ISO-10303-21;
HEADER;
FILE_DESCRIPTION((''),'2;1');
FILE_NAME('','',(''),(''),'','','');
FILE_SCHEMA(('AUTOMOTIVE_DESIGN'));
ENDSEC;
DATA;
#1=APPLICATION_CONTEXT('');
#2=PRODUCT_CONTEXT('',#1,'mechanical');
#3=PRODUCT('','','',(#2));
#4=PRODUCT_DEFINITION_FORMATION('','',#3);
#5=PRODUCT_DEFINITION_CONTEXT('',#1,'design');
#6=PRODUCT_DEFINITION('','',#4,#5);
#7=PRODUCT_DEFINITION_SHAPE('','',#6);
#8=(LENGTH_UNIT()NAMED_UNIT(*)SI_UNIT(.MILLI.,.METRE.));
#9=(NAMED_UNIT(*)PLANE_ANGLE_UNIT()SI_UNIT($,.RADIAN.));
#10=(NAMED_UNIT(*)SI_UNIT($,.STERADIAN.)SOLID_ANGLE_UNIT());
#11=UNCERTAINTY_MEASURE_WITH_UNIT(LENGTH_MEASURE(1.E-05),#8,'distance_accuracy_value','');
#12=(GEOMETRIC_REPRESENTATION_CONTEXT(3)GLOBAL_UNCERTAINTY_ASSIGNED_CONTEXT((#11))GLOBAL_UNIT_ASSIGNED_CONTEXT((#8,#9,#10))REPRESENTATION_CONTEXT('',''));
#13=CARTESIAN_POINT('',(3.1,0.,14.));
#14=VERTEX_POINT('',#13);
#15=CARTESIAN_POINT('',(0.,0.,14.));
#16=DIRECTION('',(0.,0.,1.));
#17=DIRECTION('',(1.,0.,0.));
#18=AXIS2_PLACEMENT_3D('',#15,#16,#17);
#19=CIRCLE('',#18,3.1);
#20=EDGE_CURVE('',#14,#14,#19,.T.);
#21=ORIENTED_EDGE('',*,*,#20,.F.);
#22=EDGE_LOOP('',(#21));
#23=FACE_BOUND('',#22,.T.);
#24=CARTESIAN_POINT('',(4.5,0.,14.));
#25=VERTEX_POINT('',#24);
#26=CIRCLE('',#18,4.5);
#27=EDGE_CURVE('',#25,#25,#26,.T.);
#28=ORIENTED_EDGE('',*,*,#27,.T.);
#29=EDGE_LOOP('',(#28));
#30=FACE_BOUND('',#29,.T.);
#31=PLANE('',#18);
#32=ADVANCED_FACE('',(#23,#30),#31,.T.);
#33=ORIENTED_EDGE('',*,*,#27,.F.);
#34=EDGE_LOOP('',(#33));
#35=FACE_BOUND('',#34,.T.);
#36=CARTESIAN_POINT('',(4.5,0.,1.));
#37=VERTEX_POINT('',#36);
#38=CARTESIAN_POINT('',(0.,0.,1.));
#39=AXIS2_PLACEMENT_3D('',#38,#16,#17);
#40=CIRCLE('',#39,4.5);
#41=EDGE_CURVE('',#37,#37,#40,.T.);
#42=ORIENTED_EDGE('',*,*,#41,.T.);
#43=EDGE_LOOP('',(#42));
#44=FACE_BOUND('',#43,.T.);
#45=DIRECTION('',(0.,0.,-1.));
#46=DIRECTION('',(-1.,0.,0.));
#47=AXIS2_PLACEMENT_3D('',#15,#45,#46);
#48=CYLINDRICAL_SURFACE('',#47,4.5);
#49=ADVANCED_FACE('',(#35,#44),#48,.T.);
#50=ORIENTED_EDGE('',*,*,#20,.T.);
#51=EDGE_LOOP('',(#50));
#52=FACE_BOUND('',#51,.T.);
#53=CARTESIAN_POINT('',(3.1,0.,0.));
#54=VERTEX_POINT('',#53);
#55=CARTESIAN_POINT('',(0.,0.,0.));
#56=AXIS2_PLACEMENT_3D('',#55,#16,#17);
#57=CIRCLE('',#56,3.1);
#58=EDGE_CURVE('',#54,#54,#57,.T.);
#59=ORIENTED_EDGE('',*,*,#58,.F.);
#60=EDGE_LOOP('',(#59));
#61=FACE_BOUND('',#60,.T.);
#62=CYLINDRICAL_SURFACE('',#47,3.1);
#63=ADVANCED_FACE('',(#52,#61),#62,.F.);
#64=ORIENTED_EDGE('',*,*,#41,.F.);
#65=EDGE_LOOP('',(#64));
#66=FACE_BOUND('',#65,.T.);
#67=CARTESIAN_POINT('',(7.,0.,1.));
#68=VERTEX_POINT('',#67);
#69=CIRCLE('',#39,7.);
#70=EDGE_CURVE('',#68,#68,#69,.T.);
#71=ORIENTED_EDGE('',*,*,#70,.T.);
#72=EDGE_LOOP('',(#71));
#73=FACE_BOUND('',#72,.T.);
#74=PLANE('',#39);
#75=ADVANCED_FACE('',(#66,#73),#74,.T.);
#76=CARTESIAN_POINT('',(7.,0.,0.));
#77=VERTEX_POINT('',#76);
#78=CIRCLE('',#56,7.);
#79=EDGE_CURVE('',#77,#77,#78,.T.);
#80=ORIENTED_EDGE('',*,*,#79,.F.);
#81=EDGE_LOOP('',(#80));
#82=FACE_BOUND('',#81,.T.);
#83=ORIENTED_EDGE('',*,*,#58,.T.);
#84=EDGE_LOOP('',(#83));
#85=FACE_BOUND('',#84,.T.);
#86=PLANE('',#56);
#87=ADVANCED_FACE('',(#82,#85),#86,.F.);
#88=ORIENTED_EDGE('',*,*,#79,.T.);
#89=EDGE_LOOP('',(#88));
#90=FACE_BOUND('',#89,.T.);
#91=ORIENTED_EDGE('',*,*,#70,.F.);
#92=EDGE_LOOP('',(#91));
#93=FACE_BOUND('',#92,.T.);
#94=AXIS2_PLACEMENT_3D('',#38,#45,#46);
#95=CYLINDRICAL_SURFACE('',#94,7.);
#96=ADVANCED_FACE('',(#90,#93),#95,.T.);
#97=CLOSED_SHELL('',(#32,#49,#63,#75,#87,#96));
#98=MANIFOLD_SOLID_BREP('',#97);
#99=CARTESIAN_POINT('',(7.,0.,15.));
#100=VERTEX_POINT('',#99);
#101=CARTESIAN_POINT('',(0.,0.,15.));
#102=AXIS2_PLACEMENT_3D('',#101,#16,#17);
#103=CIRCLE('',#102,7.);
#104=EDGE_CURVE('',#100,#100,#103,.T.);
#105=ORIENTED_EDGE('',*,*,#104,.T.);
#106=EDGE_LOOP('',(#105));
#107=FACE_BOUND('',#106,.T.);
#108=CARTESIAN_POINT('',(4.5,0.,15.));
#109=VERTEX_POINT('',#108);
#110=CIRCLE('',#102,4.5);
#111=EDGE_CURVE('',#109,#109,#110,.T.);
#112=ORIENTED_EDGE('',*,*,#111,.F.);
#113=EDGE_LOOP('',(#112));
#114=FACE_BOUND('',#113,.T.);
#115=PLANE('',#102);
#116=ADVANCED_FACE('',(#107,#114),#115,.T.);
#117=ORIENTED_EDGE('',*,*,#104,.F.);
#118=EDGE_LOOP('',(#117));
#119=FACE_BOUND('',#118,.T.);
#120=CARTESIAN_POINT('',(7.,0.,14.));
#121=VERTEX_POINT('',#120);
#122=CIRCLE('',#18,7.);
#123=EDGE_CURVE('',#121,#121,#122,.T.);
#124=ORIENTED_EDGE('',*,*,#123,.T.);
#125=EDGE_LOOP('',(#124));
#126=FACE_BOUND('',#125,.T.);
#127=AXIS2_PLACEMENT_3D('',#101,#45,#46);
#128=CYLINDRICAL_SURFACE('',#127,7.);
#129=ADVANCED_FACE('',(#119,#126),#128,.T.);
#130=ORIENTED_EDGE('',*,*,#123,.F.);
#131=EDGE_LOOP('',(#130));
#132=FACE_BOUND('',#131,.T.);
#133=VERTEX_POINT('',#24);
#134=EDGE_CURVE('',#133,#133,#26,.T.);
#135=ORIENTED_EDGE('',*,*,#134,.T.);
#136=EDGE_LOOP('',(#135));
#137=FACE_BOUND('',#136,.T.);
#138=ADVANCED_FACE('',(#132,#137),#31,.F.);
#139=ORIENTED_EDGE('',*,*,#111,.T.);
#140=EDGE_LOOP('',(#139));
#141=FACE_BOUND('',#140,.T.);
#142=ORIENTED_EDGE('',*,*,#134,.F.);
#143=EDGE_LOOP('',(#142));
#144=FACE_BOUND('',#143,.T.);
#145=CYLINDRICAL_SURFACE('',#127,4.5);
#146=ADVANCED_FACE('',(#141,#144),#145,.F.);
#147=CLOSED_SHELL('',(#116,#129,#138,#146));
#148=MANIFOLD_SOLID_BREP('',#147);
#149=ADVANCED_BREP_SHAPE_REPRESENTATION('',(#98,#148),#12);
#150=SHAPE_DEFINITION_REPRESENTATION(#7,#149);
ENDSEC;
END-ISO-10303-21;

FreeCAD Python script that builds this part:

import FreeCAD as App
import Part
import Sketcher
from FreeCAD import Vector
Q = App.Units.Quantity

doc = App.newDocument("Part")
body = doc.addObject("PartDesign::Body", "Body")

# Sketch on XY plane
sketch1 = doc.addObject("Sketcher::SketchObject", "Sketch")
body.addObject(sketch1)
sketch1.AttachmentSupport = (doc.XY_Plane, [""])
sketch1.MapMode = "FlatFace"
sketch1.addGeometry(Part.Circle(Vector(0, 0, 0), Vector(0, 0, 1), 4.5), False)
sketch1.addGeometry(Part.Circle(Vector(0, 0, 0), Vector(0, 0, 1), 3.1), False)
sketch1.addConstraint(Sketcher.Constraint("Coincident", 0, 3, -1, 1))
sketch1.addConstraint(Sketcher.Constraint("Coincident", 1, 3, -1, 1))
sketch1.addConstraint(Sketcher.Constraint("Diameter", 0, Q("9 mm")))
sketch1.addConstraint(Sketcher.Constraint("Diameter", 1, Q("6.2 mm")))
pad1 = doc.addObject("PartDesign::Pad", "Pad")
body.addObject(pad1)
pad1.Profile = sketch1
pad1.Length = 14

# Sketch on XY plane
sketch2 = doc.addObject("Sketcher::SketchObject", "Sketch001")
body.addObject(sketch2)
sketch2.AttachmentSupport = (doc.XY_Plane, [""])
sketch2.MapMode = "FlatFace"
sketch2.addGeometry(Part.Circle(Vector(0, 0, 0), Vector(0, 0, 1), 7), False)
sketch2.addGeometry(Part.Circle(Vector(0, 0, 0), Vector(0, 0, 1), 4.5), False)
sketch2.addConstraint(Sketcher.Constraint("Coincident", 0, 3, -1, 1))
sketch2.addConstraint(Sketcher.Constraint("Coincident", 1, 3, -1, 1))
sketch2.addConstraint(Sketcher.Constraint("Diameter", 0, Q("14 mm")))
sketch2.addConstraint(Sketcher.Constraint("Diameter", 1, Q("9 mm")))
pad2 = doc.addObject("PartDesign::Pad", "Pad001")
body.addObject(pad2)
pad2.Profile = sketch2
pad2.Length = 1
body2 = doc.addObject("PartDesign::Body", "Body001")

# Sketch on XY plane
sketch3 = doc.addObject("Sketcher::SketchObject", "Sketch002")
body2.addObject(sketch3)
sketch3.AttachmentSupport = (doc.getObject("XY_Plane001"), [""])
sketch3.MapMode = "FlatFace"
sketch3.AttachmentOffset = App.Placement(Vector(0, 0, 14), App.Rotation())
sketch3.addGeometry(Part.Circle(Vector(0, 0, 0), Vector(0, 0, 1), 7), False)
sketch3.addGeometry(Part.Circle(Vector(0, 0, 0), Vector(0, 0, 1), 4.5), False)
sketch3.addConstraint(Sketcher.Constraint("Coincident", 0, 3, -1, 1))
sketch3.addConstraint(Sketcher.Constraint("Coincident", 1, 3, -1, 1))
sketch3.addConstraint(Sketcher.Constraint("Diameter", 0, Q("14 mm")))
sketch3.addConstraint(Sketcher.Constraint("Diameter", 1, Q("9 mm")))
pad3 = doc.addObject("PartDesign::Pad", "Pad002")
body2.addObject(pad3)
pad3.Profile = sketch3
pad3.Length = 1

doc.recompute()
